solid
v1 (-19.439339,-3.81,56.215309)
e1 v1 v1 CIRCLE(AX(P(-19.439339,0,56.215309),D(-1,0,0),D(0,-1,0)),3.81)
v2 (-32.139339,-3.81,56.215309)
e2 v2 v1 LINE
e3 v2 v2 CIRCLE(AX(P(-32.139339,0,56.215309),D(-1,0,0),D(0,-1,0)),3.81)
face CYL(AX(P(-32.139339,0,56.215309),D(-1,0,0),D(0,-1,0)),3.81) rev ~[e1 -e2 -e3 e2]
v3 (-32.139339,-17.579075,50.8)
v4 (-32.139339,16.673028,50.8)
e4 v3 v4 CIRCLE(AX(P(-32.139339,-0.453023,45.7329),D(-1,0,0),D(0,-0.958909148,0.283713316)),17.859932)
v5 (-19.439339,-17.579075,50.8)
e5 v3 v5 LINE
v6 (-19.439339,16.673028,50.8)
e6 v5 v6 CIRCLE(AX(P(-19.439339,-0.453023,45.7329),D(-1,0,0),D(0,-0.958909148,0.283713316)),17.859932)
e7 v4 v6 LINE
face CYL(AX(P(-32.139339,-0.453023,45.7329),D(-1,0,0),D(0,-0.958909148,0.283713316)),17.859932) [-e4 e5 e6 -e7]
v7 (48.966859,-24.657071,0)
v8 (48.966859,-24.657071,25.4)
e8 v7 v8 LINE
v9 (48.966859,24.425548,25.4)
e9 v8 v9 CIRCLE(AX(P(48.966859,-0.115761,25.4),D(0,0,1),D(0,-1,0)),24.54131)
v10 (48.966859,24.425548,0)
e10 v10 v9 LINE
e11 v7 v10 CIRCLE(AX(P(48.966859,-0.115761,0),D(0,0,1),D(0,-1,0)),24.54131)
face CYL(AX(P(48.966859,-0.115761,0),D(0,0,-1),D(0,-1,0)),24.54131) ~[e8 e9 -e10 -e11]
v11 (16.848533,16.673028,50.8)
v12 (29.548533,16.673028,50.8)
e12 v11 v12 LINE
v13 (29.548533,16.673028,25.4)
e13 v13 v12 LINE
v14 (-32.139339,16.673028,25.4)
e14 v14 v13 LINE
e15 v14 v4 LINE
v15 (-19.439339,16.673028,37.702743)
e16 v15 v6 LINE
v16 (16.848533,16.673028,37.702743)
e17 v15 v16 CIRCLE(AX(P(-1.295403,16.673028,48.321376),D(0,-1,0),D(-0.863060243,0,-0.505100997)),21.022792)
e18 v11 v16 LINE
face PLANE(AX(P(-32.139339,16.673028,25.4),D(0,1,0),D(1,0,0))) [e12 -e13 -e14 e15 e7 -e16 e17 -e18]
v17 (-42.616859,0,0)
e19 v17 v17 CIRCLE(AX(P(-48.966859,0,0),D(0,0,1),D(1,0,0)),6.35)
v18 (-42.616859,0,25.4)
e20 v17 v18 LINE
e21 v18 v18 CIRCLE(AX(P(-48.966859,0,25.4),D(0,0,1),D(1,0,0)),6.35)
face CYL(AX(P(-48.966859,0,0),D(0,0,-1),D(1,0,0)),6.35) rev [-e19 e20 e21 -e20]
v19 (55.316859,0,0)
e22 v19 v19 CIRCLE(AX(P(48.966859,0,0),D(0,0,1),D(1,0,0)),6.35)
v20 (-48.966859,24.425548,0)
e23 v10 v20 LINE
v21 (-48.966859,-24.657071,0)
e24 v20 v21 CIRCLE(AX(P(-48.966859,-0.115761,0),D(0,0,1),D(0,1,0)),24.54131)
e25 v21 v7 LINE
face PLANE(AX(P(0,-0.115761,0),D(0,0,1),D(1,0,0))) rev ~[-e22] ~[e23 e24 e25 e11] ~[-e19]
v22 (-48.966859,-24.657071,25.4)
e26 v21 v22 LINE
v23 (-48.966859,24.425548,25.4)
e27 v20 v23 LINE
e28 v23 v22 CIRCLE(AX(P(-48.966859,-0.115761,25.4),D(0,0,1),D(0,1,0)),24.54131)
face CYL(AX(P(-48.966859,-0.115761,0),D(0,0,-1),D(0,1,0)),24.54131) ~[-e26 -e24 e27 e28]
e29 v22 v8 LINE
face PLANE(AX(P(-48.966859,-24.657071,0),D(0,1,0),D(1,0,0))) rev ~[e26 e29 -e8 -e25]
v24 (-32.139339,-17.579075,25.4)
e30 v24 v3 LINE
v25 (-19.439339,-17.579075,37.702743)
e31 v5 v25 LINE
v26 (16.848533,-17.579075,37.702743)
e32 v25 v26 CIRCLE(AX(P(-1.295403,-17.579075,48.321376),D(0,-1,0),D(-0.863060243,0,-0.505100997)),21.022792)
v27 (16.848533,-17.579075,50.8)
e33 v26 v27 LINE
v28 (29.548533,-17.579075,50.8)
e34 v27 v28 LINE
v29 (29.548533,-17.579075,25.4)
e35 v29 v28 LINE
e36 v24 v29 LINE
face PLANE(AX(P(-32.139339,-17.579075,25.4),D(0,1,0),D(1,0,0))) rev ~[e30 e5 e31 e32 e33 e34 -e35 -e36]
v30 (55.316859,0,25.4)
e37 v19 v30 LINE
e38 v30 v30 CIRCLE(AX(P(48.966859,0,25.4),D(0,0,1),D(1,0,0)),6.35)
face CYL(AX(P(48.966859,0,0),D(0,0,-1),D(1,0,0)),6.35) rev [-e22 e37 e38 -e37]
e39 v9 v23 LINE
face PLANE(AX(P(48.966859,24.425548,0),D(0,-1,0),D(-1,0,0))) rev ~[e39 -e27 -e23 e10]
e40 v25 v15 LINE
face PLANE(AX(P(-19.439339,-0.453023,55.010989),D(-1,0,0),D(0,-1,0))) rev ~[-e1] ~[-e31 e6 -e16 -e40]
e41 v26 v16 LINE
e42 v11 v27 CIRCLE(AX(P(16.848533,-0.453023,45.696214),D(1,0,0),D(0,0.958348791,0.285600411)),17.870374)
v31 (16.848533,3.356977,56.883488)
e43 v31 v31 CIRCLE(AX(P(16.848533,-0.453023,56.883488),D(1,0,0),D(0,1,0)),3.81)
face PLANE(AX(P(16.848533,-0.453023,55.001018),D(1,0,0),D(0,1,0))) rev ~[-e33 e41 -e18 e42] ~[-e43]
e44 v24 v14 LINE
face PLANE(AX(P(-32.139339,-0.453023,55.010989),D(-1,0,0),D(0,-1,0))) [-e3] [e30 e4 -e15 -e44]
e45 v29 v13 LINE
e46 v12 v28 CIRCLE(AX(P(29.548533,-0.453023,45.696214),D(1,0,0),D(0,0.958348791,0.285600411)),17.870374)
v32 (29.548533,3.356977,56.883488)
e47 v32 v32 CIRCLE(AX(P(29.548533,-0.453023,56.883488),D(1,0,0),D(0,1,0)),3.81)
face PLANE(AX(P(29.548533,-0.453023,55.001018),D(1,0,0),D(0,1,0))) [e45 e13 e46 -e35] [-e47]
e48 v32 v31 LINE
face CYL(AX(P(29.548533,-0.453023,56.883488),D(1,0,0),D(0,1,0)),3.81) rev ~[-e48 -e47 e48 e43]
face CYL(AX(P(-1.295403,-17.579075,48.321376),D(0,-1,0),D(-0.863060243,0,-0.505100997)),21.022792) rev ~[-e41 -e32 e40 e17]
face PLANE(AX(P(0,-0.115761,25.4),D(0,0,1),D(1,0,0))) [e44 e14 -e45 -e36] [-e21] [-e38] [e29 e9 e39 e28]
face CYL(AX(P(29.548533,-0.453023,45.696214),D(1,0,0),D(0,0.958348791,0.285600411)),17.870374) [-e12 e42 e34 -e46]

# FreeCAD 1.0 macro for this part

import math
import FreeCAD as App
import Part
import Sketcher
Q = App.Units.Quantity

doc = App.newDocument("Part")
params = doc.addObject("Spreadsheet::Sheet", "Params")
for row, (alias, value) in enumerate([
    ("sketch1_diameter", "0.5 in"),
    ("pad1_length", "1 in"),
    ("pad2_length", "1 in"),
    ("pocket1_length", "1.43 in"),
    ("sketch4_diameter", "0.3 in"),
    ("pad3_length", "0.5 in"),
    ("sketch5_diameter", "0.3 in"),
    ("pad4_length", "0.5 in"),
], start=1):
    params.set(f"A{row}", alias)
    params.set(f"B{row}", "=" + value)
    params.setAlias(f"B{row}", alias)

body = doc.addObject("PartDesign::Body", "Body")

# Sketch on XY plane
sketch1 = body.newObject("Sketcher::SketchObject", "Sketch")
sketch1.AttachmentSupport = (doc.getObject("XY_Plane"), [""])
sketch1.MapMode = "FlatFace"
sketch1.addGeometry(Part.LineSegment(App.Vector(49, 24, 0), App.Vector(-49, 24, 0)), False)
sketch1.addGeometry(Part.ArcOfCircle(Part.Circle(App.Vector(-49, 0, 0), App.Vector(0, 0, 1), 25), math.radians(90), math.radians(270)), False)
sketch1.addGeometry(Part.LineSegment(App.Vector(-49, -25, 0), App.Vector(49, -25, 0)), False)
sketch1.addGeometry(Part.ArcOfCircle(Part.Circle(App.Vector(49, 0, 0), App.Vector(0, 0, 1), 25), math.radians(-90), math.radians(90)), False)
sketch1.addGeometry(Part.Circle(App.Vector(-49, 0, 0), App.Vector(0, 0, 1), 6), False)
sketch1.addGeometry(Part.Circle(App.Vector(49, 0, 0), App.Vector(0, 0, 1), 6), False)
sketch1.addConstraint(Sketcher.Constraint("Tangent", 0, 2, 1, 1))
sketch1.addConstraint(Sketcher.Constraint("Tangent", 1, 2, 2, 1))
sketch1.addConstraint(Sketcher.Constraint("Tangent", 2, 2, 3, 1))
sketch1.addConstraint(Sketcher.Constraint("Tangent", 3, 2, 0, 1))
sketch1.addConstraint(Sketcher.Constraint("Horizontal", 0))
sketch1.addConstraint(Sketcher.Constraint("Horizontal", 2))
sketch1.addConstraint(Sketcher.Constraint("Equal", 4, 5))
sketch1.addConstraint(Sketcher.Constraint("Symmetric", 4, 3, 5, 3, -1, 1))
sketch1.addConstraint(Sketcher.Constraint("PointOnObject", 4, 3, -1))
sketch1.addConstraint(Sketcher.Constraint("Vertical", 1, 3, 4, 3))
sketch1.addConstraint(Sketcher.Constraint("Vertical", 3, 3, 5, 3))
sketch1.addConstraint(Sketcher.Constraint("Diameter", 4, Q("0.5 in")))
sketch1.addConstraint(Sketcher.Constraint("Radius", 1, Q("24.54131 mm")))
sketch1.addConstraint(Sketcher.Constraint("DistanceX", 0, 2, 0, 1, Q("97.933718 mm")))
sketch1.addConstraint(Sketcher.Constraint("DistanceY", 1, 3, -1, 1, Q("0.115761 mm")))
sketch1.setExpression("Constraints[11]", "Params.sketch1_diameter")
pad1 = body.newObject("PartDesign::Pad", "Pad")
pad1.Profile = sketch1
pad1.setExpression("Length", "Params.pad1_length")

# Sketch on XY plane
sketch2 = body.newObject("Sketcher::SketchObject", "Sketch001")
sketch2.AttachmentSupport = (doc.getObject("XY_Plane"), [""])
sketch2.MapMode = "FlatFace"
sketch2.AttachmentOffset = App.Placement(App.Vector(0, 0, 1 * 25.4), App.Rotation())
sketch2.addGeometry(Part.LineSegment(App.Vector(-32, 17, 0), App.Vector(-32, -18, 0)), False)
sketch2.addGeometry(Part.LineSegment(App.Vector(-32, -18, 0), App.Vector(30, -18, 0)), False)
sketch2.addGeometry(Part.LineSegment(App.Vector(30, -18, 0), App.Vector(30, 17, 0)), False)
sketch2.addGeometry(Part.LineSegment(App.Vector(30, 17, 0), App.Vector(-32, 17, 0)), False)
sketch2.addConstraint(Sketcher.Constraint("Coincident", 0, 2, 1, 1))
sketch2.addConstraint(Sketcher.Constraint("Coincident", 1, 2, 2, 1))
sketch2.addConstraint(Sketcher.Constraint("Coincident", 2, 2, 3, 1))
sketch2.addConstraint(Sketcher.Constraint("Coincident", 3, 2, 0, 1))
sketch2.addConstraint(Sketcher.Constraint("Vertical", 0))
sketch2.addConstraint(Sketcher.Constraint("Horizontal", 1))
sketch2.addConstraint(Sketcher.Constraint("Vertical", 2))
sketch2.addConstraint(Sketcher.Constraint("Horizontal", 3))
sketch2.addConstraint(Sketcher.Constraint("DistanceX", 1, 1, 1, 2, Q("61.687872 mm")))
sketch2.addConstraint(Sketcher.Constraint("DistanceY", 0, 2, 0, 1, Q("34.252103 mm")))
sketch2.addConstraint(Sketcher.Constraint("DistanceX", 0, 2, -1, 1, Q("32.139339 mm")))
sketch2.addConstraint(Sketcher.Constraint("DistanceY", -1, 1, 2, 2, Q("16.673028 mm")))
pad2 = body.newObject("PartDesign::Pad", "Pad001")
pad2.Profile = sketch2
pad2.setExpression("Length", "Params.pad2_length")

# Sketch on XZ plane
sketch3 = body.newObject("Sketcher::SketchObject", "Sketch002")
sketch3.AttachmentSupport = (doc.getObject("XZ_Plane"), [""])
sketch3.MapMode = "FlatFace"
sketch3.AttachmentOffset = App.Placement(App.Vector(0, 0, 17.579075), App.Rotation())
sketch3.addGeometry(Part.LineSegment(App.Vector(17, 51, 0), App.Vector(-19, 51, 0)), False)
sketch3.addGeometry(Part.LineSegment(App.Vector(-19, 51, 0), App.Vector(-19, 38, 0)), False)
sketch3.addGeometry(Part.ArcOfCircle(Part.Circle(App.Vector(-1, 48, 0), App.Vector(0, 0, 1), 21), math.radians(-150), math.radians(-30)), False)
sketch3.addGeometry(Part.LineSegment(App.Vector(17, 38, 0), App.Vector(17, 51, 0)), False)
sketch3.addConstraint(Sketcher.Constraint("Coincident", 0, 2, 1, 1))
sketch3.addConstraint(Sketcher.Constraint("Coincident", 1, 2, 2, 1))
sketch3.addConstraint(Sketcher.Constraint("Coincident", 2, 2, 3, 1))
sketch3.addConstraint(Sketcher.Constraint("Coincident", 3, 2, 0, 1))
sketch3.addConstraint(Sketcher.Constraint("Horizontal", 0))
sketch3.addConstraint(Sketcher.Constraint("Vertical", 1))
sketch3.addConstraint(Sketcher.Constraint("Vertical", 3))
sketch3.addConstraint(Sketcher.Constraint("Horizontal", 1, 2, 2, 2))
sketch3.addConstraint(Sketcher.Constraint("DistanceY", -1, 1, 0, 2, Q("2 in")))
sketch3.addConstraint(Sketcher.Constraint("DistanceX", 2, 3, -1, 1, Q("0.0510001 in")))
sketch3.addConstraint(Sketcher.Constraint("Radius", 2, Q("21.022792 mm")))
sketch3.addConstraint(Sketcher.Constraint("DistanceX", 0, 2, 0, 1, Q("36.287872 mm")))
sketch3.addConstraint(Sketcher.Constraint("DistanceY", 1, 2, 1, 1, Q("13.097257 mm")))
pocket1 = body.newObject("PartDesign::Pocket", "Pocket")
pocket1.Profile = sketch3
pocket1.setExpression("Length", "Params.pocket1_length")

# Sketch on YZ plane
sketch4 = body.newObject("Sketcher::SketchObject", "Sketch003")
sketch4.AttachmentSupport = (doc.getObject("YZ_Plane"), [""])
sketch4.MapMode = "FlatFace"
sketch4.AttachmentOffset = App.Placement(App.Vector(0, 0, -32.139339), App.Rotation())
sketch4.addGeometry(Part.LineSegment(App.Vector(16.7, 50.8, 0), App.Vector(-17.6, 50.8, 0)), False)
sketch4.addGeometry(Part.ArcOfCircle(Part.Circle(App.Vector(-0.5, 45.7, 0), App.Vector(0, 0, 1), 17.9), math.radians(16), math.radians(164)), False)
sketch4.addGeometry(Part.Circle(App.Vector(0, 56.2, 0), App.Vector(0, 0, 1), 3.8), False)
sketch4.addConstraint(Sketcher.Constraint("Coincident", 0, 1, 1, 1))
sketch4.addConstraint(Sketcher.Constraint("Coincident", 1, 2, 0, 2))
sketch4.addConstraint(Sketcher.Constraint("Horizontal", 0))
sketch4.addConstraint(Sketcher.Constraint("PointOnObject", 2, 3, -2))
sketch4.addConstraint(Sketcher.Constraint("Diameter", 2, Q("0.3 in")))
sketch4.addConstraint(Sketcher.Constraint("DistanceY", -1, 1, 0, 1, Q("2 in")))
sketch4.addConstraint(Sketcher.Constraint("Radius", 1, Q("17.859932 mm")))
sketch4.addConstraint(Sketcher.Constraint("DistanceY", -1, 1, 1, 3, Q("45.7329 mm")))
sketch4.addConstraint(Sketcher.Constraint("DistanceY", -1, 1, 2, 3, Q("56.215309 mm")))
sketch4.addConstraint(Sketcher.Constraint("DistanceX", -1, 1, 0, 1, Q("16.673028 mm")))
sketch4.setExpression("Constraints[4]", "Params.sketch4_diameter")
pad3 = body.newObject("PartDesign::Pad", "Pad002")
pad3.Profile = sketch4
pad3.setExpression("Length", "Params.pad3_length")

# Sketch on YZ plane
sketch5 = body.newObject("Sketcher::SketchObject", "Sketch004")
sketch5.AttachmentSupport = (doc.getObject("YZ_Plane"), [""])
sketch5.MapMode = "FlatFace"
sketch5.AttachmentOffset = App.Placement(App.Vector(0, 0, 29.548533), App.Rotation())
sketch5.addGeometry(Part.ArcOfCircle(Part.Circle(App.Vector(-0.5, 45.7, 0), App.Vector(0, 0, 1), 17.9), math.radians(17), math.radians(163)), False)
sketch5.addGeometry(Part.LineSegment(App.Vector(-17.6, 50.8, 0), App.Vector(16.7, 50.8, 0)), False)
sketch5.addGeometry(Part.Circle(App.Vector(-0.5, 56.9, 0), App.Vector(0, 0, 1), 3.8), False)
sketch5.addConstraint(Sketcher.Constraint("Coincident", 0, 1, 1, 2))
sketch5.addConstraint(Sketcher.Constraint("Coincident", 1, 1, 0, 2))
sketch5.addConstraint(Sketcher.Constraint("Horizontal", 1))
sketch5.addConstraint(Sketcher.Constraint("Vertical", 0, 3, 2, 3))
sketch5.addConstraint(Sketcher.Constraint("Diameter", 2, Q("0.3 in")))
sketch5.addConstraint(Sketcher.Constraint("DistanceY", -1, 1, 0, 1, Q("2 in")))
sketch5.addConstraint(Sketcher.Constraint("Radius", 0, Q("17.870374 mm")))
sketch5.addConstraint(Sketcher.Constraint("DistanceX", 1, 1, 1, 2, Q("34.252103 mm")))
sketch5.addConstraint(Sketcher.Constraint("DistanceX", -1, 1, 0, 1, Q("16.673028 mm")))
sketch5.addConstraint(Sketcher.Constraint("DistanceY", -1, 1, 2, 3, Q("56.883488 mm")))
sketch5.setExpression("Constraints[4]", "Params.sketch5_diameter")
pad4 = body.newObject("PartDesign::Pad", "Pad003")
pad4.Profile = sketch5
pad4.setExpression("Length", "Params.pad4_length")
pad4.Reversed = True

doc.recompute()
